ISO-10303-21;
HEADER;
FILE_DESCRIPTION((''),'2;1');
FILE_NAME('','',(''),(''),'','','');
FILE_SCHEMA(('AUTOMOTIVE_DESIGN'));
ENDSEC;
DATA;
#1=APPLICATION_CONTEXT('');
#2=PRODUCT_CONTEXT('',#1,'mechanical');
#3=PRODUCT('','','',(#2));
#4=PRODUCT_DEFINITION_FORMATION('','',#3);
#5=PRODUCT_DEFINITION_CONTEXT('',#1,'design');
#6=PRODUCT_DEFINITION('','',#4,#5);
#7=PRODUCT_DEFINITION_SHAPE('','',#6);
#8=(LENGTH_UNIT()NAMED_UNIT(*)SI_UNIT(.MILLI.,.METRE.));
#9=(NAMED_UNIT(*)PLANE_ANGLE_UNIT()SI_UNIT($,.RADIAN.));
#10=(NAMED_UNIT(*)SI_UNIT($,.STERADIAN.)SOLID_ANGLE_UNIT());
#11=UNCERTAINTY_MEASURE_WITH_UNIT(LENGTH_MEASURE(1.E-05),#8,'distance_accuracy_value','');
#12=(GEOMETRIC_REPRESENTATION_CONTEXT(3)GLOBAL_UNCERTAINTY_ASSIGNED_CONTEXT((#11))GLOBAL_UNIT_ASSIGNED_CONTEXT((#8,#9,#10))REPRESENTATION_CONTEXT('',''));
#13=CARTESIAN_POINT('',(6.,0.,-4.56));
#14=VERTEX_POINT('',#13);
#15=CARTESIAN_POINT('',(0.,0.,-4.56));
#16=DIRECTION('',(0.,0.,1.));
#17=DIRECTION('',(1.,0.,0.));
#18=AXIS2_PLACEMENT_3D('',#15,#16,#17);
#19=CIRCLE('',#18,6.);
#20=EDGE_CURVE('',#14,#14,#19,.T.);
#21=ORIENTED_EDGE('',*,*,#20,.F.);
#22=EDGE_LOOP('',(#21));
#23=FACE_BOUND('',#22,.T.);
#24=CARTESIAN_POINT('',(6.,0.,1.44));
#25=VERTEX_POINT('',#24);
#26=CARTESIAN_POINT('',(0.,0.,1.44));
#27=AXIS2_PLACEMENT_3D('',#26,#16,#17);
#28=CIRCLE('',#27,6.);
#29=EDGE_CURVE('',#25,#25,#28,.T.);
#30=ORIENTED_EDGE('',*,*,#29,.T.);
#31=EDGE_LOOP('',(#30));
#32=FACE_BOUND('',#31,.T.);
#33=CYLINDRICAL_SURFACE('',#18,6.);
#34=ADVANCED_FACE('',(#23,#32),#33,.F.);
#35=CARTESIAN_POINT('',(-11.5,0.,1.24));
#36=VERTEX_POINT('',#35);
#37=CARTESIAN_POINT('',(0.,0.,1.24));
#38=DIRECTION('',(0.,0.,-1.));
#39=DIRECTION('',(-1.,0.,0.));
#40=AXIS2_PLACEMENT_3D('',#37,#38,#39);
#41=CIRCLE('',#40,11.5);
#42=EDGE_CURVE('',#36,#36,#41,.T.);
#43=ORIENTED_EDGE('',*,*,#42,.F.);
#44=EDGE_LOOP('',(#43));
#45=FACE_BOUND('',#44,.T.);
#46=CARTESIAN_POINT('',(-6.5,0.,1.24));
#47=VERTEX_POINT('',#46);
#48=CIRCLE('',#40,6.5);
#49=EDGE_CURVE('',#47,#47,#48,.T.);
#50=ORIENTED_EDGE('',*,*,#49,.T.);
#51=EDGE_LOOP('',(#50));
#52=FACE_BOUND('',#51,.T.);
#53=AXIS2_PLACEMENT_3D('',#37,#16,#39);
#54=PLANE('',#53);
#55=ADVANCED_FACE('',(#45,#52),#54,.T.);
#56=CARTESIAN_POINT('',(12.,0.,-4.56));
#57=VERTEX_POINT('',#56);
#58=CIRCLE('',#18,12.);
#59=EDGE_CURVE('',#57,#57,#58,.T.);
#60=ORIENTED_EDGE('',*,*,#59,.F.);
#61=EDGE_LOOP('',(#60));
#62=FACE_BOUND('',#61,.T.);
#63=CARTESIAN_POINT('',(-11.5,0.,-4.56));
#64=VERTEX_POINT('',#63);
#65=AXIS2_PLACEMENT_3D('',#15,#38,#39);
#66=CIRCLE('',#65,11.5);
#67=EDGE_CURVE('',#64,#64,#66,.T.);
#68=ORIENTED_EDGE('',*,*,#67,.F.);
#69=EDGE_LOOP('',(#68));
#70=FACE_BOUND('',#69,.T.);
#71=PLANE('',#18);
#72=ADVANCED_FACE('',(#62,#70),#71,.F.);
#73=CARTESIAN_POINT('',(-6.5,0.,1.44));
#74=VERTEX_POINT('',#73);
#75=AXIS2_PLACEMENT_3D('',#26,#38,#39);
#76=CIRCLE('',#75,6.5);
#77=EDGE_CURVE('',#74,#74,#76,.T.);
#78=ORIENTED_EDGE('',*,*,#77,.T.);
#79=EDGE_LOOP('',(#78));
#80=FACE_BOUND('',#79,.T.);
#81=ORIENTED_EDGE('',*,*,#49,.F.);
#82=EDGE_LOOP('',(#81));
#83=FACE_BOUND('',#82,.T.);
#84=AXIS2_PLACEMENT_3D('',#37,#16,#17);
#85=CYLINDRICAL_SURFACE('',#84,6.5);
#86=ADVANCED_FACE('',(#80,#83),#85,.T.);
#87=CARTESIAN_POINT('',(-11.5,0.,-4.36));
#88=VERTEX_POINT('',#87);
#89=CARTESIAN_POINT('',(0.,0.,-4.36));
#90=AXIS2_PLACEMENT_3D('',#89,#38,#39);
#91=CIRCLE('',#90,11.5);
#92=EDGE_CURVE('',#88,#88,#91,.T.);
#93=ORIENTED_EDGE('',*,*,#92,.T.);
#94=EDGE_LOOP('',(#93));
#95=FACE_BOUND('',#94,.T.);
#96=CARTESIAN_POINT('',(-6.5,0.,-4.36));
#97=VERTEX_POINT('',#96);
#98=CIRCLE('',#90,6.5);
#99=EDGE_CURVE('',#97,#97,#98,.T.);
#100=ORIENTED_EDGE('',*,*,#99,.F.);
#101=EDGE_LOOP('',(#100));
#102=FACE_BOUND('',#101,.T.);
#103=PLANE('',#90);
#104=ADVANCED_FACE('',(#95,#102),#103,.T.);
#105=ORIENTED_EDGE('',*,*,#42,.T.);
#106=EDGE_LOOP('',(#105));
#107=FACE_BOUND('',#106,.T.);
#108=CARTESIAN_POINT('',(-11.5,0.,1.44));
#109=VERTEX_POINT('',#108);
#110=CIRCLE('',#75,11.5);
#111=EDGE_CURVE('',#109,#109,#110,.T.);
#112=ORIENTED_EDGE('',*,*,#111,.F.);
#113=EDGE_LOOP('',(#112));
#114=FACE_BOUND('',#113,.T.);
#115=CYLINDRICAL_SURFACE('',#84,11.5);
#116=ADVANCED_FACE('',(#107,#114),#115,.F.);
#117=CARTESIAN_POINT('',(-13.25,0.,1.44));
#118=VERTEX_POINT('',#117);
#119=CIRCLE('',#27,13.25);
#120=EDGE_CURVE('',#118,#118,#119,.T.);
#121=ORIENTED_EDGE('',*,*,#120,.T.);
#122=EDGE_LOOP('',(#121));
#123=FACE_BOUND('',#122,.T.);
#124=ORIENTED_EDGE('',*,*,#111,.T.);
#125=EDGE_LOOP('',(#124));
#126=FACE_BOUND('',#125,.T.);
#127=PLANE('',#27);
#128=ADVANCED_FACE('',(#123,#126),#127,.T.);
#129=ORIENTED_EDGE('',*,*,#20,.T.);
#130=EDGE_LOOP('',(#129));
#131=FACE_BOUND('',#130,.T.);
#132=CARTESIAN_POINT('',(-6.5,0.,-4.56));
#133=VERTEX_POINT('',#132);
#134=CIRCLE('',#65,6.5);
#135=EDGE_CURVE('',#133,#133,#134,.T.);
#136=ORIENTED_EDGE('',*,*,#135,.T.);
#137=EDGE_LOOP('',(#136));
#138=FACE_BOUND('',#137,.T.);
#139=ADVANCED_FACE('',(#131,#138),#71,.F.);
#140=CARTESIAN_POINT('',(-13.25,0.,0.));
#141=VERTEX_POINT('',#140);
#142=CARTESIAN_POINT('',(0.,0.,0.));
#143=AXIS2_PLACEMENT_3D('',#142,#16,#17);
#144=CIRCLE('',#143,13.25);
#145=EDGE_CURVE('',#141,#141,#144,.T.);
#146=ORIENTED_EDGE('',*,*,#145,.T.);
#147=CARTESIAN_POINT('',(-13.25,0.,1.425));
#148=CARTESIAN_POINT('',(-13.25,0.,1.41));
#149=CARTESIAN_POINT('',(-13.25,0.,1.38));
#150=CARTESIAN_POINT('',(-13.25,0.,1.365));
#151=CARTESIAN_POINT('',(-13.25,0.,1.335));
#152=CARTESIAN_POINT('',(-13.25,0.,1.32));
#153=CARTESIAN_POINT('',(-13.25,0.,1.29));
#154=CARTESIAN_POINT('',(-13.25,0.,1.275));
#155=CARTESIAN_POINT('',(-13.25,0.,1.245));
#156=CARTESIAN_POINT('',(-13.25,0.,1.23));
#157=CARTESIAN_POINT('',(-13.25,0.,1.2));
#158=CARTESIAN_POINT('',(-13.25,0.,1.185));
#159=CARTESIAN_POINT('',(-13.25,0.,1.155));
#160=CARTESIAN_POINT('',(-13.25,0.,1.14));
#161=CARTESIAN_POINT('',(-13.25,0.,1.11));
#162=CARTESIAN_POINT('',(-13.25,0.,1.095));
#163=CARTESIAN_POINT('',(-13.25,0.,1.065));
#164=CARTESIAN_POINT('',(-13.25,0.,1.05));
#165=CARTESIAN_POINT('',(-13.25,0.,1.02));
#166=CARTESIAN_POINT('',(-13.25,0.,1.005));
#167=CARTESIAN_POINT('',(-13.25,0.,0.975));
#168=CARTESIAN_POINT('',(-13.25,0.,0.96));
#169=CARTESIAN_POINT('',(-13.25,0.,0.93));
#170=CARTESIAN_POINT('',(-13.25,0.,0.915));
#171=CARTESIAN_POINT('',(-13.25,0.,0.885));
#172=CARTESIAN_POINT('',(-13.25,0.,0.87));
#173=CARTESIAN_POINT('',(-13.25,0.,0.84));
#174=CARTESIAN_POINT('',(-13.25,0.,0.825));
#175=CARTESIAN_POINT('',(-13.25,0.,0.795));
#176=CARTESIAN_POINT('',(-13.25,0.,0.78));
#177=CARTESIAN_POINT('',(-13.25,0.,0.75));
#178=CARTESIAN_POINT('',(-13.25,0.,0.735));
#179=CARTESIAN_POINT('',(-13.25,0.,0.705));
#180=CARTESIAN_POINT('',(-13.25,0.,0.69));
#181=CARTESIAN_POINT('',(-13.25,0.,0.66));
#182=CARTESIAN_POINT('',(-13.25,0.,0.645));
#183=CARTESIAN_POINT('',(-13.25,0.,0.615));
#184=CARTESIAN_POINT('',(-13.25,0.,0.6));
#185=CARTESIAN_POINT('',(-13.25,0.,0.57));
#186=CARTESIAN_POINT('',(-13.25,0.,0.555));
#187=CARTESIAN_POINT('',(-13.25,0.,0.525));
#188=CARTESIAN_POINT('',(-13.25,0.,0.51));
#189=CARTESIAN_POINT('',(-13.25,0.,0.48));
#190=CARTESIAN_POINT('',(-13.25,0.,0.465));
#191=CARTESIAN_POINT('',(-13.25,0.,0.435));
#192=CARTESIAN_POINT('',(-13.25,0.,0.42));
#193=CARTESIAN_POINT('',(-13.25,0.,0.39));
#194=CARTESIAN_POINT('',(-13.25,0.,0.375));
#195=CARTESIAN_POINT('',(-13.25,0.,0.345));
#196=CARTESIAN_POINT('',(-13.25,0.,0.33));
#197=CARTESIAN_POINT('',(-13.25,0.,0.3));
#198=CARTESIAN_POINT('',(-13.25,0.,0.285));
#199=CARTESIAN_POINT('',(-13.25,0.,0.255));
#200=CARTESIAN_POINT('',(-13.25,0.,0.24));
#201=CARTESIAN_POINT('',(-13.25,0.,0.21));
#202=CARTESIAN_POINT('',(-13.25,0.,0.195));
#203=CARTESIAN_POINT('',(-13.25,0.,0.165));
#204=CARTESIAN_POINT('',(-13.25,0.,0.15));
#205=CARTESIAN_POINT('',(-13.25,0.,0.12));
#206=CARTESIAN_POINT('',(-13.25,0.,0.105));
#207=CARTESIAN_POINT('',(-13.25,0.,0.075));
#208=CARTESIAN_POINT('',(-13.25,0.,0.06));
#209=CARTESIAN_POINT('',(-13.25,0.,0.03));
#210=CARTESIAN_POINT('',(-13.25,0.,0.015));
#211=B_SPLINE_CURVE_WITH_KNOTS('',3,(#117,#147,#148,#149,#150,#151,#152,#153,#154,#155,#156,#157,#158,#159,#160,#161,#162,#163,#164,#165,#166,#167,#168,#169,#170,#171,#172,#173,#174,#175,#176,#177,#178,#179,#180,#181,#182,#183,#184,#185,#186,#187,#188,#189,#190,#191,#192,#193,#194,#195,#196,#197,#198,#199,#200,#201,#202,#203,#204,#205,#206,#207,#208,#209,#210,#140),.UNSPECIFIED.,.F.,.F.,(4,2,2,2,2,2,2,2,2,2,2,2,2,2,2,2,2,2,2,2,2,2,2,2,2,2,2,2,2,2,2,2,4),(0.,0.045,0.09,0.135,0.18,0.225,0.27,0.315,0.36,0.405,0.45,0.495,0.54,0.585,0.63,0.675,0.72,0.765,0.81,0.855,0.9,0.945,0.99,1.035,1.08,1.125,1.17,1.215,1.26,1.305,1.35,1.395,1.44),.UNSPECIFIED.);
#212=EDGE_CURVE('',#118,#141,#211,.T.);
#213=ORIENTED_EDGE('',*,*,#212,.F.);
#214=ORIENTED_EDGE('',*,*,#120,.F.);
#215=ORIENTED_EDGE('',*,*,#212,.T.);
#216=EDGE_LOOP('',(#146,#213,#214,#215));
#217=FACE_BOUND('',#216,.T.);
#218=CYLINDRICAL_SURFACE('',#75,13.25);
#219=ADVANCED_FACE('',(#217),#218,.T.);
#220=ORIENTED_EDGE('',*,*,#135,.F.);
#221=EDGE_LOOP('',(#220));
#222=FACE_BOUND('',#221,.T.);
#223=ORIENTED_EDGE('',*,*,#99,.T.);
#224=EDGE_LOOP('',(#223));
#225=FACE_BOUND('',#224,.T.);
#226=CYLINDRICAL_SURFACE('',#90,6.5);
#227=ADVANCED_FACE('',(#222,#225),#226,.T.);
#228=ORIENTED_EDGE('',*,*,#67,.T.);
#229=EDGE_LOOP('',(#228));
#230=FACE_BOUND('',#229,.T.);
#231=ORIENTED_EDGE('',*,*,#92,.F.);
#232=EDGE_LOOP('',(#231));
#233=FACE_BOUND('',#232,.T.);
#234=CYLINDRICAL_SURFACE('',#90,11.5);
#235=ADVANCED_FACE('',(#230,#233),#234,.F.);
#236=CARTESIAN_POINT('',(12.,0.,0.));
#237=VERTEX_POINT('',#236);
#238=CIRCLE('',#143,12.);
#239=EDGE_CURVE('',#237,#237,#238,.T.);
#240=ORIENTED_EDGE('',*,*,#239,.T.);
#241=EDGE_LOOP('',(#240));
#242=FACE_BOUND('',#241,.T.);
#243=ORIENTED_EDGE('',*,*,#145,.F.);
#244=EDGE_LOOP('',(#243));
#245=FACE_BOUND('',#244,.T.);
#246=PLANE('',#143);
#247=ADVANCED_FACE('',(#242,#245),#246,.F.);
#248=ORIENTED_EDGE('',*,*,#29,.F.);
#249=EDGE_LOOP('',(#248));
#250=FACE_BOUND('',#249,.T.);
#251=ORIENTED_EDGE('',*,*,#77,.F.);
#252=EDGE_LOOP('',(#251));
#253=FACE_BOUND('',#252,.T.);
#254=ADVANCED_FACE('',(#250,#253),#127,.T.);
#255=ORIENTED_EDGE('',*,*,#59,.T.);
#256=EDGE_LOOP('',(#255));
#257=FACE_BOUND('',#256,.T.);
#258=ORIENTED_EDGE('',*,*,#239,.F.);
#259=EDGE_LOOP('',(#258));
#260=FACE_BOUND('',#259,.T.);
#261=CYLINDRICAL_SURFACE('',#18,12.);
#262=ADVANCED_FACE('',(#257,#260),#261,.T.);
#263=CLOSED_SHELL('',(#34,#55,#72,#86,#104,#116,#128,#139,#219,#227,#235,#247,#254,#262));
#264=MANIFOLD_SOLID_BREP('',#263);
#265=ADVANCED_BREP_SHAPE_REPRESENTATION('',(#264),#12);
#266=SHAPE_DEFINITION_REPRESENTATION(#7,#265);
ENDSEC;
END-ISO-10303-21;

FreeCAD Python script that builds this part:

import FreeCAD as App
import Part
import Sketcher

V = App.Vector
Q = App.Units.Quantity

doc = App.newDocument("Part")
body = doc.addObject("PartDesign::Body", "Body")

# Sketch on XY plane
sketch1 = doc.addObject("Sketcher::SketchObject", "Sketch")
body.addObject(sketch1)
sketch1.AttachmentSupport = (doc.XY_Plane, [""])
sketch1.MapMode = "FlatFace"
sketch1.addGeometry(Part.Circle(V(0, 0, 0), V(0, 0, 1), 13.25), False)
sketch1.addGeometry(Part.Circle(V(0, 0, 0), V(0, 0, 1), 12), False)
sketch1.addConstraint(Sketcher.Constraint("Coincident", 0, 3, -1, 1))
sketch1.addConstraint(Sketcher.Constraint("Coincident", 1, 3, -1, 1))
sketch1.addConstraint(Sketcher.Constraint("Diameter", 1, Q("24 mm")))
sketch1.addConstraint(Sketcher.Constraint("Diameter", 0, Q("26.5 mm")))
pad1 = doc.addObject("PartDesign::Pad", "Pad")
body.addObject(pad1)
pad1.Profile = sketch1
pad1.Length = 1.44

# Sketch on XY plane
sketch2 = doc.addObject("Sketcher::SketchObject", "Sketch001")
body.addObject(sketch2)
sketch2.AttachmentSupport = (doc.XY_Plane, [""])
sketch2.MapMode = "FlatFace"
sketch2.AttachmentOffset = App.Placement(V(0, 0, -4.56), App.Rotation())
sketch2.addGeometry(Part.Circle(V(0, 0, 0), V(0, 0, 1), 12), False)
sketch2.addGeometry(Part.Circle(V(0, 0, 0), V(0, 0, 1), 6), False)
sketch2.addConstraint(Sketcher.Constraint("Coincident", 0, 3, -1, 1))
sketch2.addConstraint(Sketcher.Constraint("Coincident", 1, 3, -1, 1))
sketch2.addConstraint(Sketcher.Constraint("Diameter", 0, Q("24 mm")))
sketch2.addConstraint(Sketcher.Constraint("Diameter", 1, Q("12 mm")))
pad2 = doc.addObject("PartDesign::Pad", "Pad001")
body.addObject(pad2)
pad2.Profile = sketch2
pad2.Length = 6

# Sketch on XY plane
sketch3 = doc.addObject("Sketcher::SketchObject", "Sketch002")
body.addObject(sketch3)
sketch3.AttachmentSupport = (doc.XY_Plane, [""])
sketch3.MapMode = "FlatFace"
sketch3.AttachmentOffset = App.Placement(V(0, 0, -4.56), App.Rotation())
sketch3.addGeometry(Part.Circle(V(0, 0, 0), V(0, 0, 1), 11.5), False)
sketch3.addGeometry(Part.Circle(V(0, 0, 0), V(0, 0, 1), 6.5), False)
sketch3.addConstraint(Sketcher.Constraint("Coincident", 0, 3, -1, 1))
sketch3.addConstraint(Sketcher.Constraint("Coincident", 1, 3, -1, 1))
sketch3.addConstraint(Sketcher.Constraint("Diameter", 0, Q("23 mm")))
sketch3.addConstraint(Sketcher.Constraint("Diameter", 1, Q("13 mm")))
pocket1 = doc.addObject("PartDesign::Pocket", "Pocket")
body.addObject(pocket1)
pocket1.Profile = sketch3
pocket1.Length = 0.2
pocket1.Reversed = True
doc.recompute()

datumplane = doc.addObject("PartDesign::Plane", "DatumPlane")
body.addObject(datumplane)
datumplane.AttachmentSupport = (doc.XY_Plane, [""])
datumplane.MapMode = "FlatFace"
datumplane.AttachmentOffset = App.Placement(V(0, 0, -1.56), App.Rotation())
mirrored = doc.addObject("PartDesign::Mirrored", "Mirrored")
body.addObject(mirrored)
mirrored.Originals = [pocket1]
mirrored.MirrorPlane = (datumplane, [""])
body.Tip = mirrored

doc.recompute()
